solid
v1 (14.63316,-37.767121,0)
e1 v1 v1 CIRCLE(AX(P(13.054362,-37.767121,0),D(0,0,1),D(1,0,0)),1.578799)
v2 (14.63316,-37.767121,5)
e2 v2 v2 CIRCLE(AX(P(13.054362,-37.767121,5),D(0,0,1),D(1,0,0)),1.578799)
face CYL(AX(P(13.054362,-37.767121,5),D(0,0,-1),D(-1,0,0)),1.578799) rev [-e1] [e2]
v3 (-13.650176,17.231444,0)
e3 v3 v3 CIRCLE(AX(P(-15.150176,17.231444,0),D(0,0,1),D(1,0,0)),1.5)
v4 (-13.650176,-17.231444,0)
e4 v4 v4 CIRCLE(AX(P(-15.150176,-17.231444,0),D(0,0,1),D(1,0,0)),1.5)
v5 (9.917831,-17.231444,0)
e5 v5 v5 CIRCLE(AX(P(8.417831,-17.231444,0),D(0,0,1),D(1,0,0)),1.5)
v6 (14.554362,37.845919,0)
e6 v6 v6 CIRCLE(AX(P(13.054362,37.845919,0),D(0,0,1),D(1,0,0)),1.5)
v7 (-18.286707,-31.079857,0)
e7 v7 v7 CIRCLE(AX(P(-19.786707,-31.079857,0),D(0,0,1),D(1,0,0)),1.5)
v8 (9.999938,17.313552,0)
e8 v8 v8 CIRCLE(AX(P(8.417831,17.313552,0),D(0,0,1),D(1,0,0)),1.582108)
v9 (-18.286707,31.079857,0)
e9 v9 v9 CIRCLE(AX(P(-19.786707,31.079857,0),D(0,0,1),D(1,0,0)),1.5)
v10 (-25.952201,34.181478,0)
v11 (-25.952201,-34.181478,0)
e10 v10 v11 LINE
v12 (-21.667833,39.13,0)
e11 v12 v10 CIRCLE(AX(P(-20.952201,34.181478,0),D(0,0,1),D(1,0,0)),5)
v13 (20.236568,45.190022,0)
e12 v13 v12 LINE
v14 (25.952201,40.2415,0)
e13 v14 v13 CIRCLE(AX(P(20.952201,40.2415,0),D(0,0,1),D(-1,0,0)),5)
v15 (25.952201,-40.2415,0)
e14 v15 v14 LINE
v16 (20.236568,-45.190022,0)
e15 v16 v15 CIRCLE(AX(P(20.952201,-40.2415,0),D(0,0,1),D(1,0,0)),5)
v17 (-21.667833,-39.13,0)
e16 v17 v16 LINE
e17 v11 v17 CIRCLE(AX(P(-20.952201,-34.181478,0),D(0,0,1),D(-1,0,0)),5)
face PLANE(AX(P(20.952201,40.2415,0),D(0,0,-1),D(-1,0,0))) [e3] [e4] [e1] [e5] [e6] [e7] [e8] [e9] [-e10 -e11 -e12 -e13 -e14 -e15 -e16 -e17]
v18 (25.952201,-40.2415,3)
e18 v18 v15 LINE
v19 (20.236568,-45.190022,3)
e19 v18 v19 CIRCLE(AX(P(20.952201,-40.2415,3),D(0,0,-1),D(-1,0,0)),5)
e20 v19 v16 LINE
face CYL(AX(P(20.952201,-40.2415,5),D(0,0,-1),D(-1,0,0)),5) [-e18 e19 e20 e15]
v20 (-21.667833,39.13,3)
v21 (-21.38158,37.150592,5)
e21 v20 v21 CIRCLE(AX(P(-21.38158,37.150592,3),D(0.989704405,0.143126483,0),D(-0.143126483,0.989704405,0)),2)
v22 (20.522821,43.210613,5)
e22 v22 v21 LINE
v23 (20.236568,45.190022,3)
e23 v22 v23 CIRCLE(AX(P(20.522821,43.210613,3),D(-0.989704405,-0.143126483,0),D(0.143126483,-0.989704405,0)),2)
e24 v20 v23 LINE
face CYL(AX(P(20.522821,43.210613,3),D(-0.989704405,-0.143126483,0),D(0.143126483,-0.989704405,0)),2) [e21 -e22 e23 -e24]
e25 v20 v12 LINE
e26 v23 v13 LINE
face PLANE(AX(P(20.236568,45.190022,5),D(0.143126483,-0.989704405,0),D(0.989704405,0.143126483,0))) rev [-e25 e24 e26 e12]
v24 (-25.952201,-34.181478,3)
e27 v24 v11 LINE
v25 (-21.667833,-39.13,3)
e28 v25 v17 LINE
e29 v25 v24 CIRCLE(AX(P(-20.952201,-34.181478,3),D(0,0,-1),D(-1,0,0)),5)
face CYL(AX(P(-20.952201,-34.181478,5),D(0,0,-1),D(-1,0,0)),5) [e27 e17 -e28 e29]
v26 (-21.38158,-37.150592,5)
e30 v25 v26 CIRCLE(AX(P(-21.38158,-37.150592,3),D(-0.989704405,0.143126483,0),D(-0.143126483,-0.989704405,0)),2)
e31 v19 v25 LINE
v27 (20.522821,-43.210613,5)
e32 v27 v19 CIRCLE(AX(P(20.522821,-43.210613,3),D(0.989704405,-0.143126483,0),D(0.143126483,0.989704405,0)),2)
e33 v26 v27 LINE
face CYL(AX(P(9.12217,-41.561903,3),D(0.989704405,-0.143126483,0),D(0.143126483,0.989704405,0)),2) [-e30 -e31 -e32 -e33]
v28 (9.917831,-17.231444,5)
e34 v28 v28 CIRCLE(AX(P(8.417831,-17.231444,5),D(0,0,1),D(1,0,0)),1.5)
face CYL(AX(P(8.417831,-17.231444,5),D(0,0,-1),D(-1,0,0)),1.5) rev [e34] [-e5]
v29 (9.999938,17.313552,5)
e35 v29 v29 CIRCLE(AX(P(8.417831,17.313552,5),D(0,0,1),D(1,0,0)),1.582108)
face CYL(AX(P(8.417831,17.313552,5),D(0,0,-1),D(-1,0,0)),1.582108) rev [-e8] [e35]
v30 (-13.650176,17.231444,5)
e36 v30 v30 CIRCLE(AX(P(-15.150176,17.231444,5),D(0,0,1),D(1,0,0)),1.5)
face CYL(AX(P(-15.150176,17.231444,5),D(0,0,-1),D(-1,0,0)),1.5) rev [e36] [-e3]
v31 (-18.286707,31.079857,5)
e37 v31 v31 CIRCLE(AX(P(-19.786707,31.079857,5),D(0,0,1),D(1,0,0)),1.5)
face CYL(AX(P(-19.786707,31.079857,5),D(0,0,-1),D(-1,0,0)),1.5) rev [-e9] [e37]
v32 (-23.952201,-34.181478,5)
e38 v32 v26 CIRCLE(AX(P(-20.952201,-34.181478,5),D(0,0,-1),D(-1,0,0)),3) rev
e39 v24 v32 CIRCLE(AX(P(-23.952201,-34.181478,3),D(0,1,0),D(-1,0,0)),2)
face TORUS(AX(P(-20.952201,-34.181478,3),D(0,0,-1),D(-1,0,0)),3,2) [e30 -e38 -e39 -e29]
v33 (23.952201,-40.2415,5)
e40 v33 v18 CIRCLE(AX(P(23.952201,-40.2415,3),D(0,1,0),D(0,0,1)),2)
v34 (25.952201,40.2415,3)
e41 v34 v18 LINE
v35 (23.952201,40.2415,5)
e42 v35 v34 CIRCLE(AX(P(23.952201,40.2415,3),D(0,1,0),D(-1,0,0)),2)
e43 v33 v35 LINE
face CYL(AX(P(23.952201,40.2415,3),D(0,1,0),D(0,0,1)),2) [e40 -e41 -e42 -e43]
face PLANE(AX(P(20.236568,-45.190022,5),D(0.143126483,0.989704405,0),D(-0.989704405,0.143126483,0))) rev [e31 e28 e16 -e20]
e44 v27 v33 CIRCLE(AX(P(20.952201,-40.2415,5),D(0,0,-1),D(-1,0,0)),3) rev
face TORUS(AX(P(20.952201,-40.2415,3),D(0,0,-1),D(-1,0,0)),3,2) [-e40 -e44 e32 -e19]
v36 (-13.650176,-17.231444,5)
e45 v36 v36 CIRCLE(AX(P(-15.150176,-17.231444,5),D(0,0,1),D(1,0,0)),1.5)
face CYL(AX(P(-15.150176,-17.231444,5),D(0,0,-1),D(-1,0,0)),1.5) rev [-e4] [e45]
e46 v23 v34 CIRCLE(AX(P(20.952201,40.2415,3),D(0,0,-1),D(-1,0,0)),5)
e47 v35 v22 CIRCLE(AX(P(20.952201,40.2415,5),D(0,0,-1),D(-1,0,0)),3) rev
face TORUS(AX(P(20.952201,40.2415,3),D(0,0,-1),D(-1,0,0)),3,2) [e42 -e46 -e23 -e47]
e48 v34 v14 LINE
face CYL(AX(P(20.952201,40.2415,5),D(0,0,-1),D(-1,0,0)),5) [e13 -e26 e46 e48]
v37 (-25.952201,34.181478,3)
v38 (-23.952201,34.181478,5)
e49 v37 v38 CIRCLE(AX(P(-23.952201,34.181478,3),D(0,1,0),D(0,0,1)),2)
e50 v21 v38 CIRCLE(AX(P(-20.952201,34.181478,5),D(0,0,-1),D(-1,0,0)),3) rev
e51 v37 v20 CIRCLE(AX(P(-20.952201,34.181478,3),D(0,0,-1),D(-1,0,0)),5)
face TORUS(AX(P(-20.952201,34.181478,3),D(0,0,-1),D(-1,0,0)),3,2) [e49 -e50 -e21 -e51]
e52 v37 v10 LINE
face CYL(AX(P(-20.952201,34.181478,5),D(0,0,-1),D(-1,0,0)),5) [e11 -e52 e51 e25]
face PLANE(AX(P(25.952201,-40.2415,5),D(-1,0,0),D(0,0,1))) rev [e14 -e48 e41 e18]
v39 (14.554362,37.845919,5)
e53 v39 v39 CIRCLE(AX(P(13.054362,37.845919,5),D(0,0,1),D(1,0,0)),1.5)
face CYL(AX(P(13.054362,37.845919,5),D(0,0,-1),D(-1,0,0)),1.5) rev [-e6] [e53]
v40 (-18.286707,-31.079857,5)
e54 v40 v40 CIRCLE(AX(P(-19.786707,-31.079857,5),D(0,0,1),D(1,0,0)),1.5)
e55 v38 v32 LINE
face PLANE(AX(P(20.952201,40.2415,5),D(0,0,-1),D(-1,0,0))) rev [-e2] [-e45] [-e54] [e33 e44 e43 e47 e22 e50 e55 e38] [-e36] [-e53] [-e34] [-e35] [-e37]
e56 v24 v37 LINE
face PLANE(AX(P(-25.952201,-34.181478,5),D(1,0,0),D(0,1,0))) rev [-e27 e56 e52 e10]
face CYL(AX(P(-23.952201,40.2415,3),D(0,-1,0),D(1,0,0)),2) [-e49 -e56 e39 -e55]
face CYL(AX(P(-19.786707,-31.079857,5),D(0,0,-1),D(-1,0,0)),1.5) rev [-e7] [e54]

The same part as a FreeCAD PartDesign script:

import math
import FreeCAD as App
import Part
import Sketcher
from FreeCAD import Vector
Q = App.Units.Quantity


def edges_at(feature, points):
    """Names of the edges that pass closest to the given points."""
    edges = feature.Shape.Edges
    near = lambda p: min(range(len(edges)), key=lambda i: edges[i].distToShape(Part.Vertex(*p))[0])
    return sorted({f"Edge{near(p) + 1}" for p in points})

doc = App.newDocument("Part")
params = doc.addObject("Spreadsheet::Sheet", "Params")
for row, (alias, value) in enumerate([
    ("sketch1_diameter", "3 mm"),
    ("sketch1_radius", "5 mm"),
    ("pad1_length", "5 mm"),
    ("fillet_radius", "2 mm"),
], start=1):
    params.set(f"A{row}", alias)
    params.set(f"B{row}", "=" + value)
    params.setAlias(f"B{row}", alias)

body = doc.addObject("PartDesign::Body", "Body")

# Sketch on XY plane
sketch1 = doc.addObject("Sketcher::SketchObject", "Sketch")
body.addObject(sketch1)
sketch1.AttachmentSupport = (doc.XY_Plane, [""])
sketch1.MapMode = "FlatFace"
sketch1.addGeometry([
    Part.LineSegment(Vector(-21.7, -39.1, 0), Vector(20.2, -45.2, 0)),  # 0
    Part.ArcOfCircle(Part.Circle(Vector(21, -40.2, 0), Vector(0, 0, 1), 5), math.radians(-98), math.radians(0)),  # 1
    Part.LineSegment(Vector(26, -40.2, 0), Vector(26, 40.2, 0)),  # 2
    Part.ArcOfCircle(Part.Circle(Vector(21, 40.2, 0), Vector(0, 0, 1), 5), math.radians(0), math.radians(98)),  # 3
    Part.LineSegment(Vector(20.2, 45.2, 0), Vector(-21.7, 39.1, 0)),  # 4
    Part.ArcOfCircle(Part.Circle(Vector(-21, 34.2, 0), Vector(0, 0, 1), 5), math.radians(98), math.radians(180)),  # 5
    Part.LineSegment(Vector(-26, 34.2, 0), Vector(-26, -34.2, 0)),  # 6
    Part.ArcOfCircle(Part.Circle(Vector(-21, -34.2, 0), Vector(0, 0, 1), 5), math.radians(-180), math.radians(-98)),  # 7
    Part.Circle(Vector(13.1, -37.8, 0), Vector(0, 0, 1), 1.6),  # 8
    Part.Circle(Vector(8.4, -17.2, 0), Vector(0, 0, 1), 1.5),  # 9
    Part.Circle(Vector(-19.8, -31.1, 0), Vector(0, 0, 1), 1.5),  # 10
    Part.Circle(Vector(-15.2, -17.2, 0), Vector(0, 0, 1), 1.5),  # 11
    Part.Circle(Vector(8.4, 17.3, 0), Vector(0, 0, 1), 1.6),  # 12
    Part.Circle(Vector(13.1, 37.8, 0), Vector(0, 0, 1), 1.5),  # 13
    Part.Circle(Vector(-15.2, 17.2, 0), Vector(0, 0, 1), 1.5),  # 14
    Part.Circle(Vector(-19.8, 31.1, 0), Vector(0, 0, 1), 1.5),  # 15
], False)
sketch1.addConstraint([
    Sketcher.Constraint("Tangent", 0, 2, 1, 1),
    Sketcher.Constraint("Tangent", 1, 2, 2, 1),
    Sketcher.Constraint("Tangent", 2, 2, 3, 1),
    Sketcher.Constraint("Tangent", 3, 2, 4, 1),
    Sketcher.Constraint("Tangent", 4, 2, 5, 1),
    Sketcher.Constraint("Tangent", 5, 2, 6, 1),
    Sketcher.Constraint("Tangent", 6, 2, 7, 1),
    Sketcher.Constraint("Tangent", 7, 2, 0, 1),
    Sketcher.Constraint("Vertical", 2),
    Sketcher.Constraint("Vertical", 6),
    Sketcher.Constraint("Equal", 1, 3),
    Sketcher.Constraint("Equal", 3, 5),
    Sketcher.Constraint("Equal", 5, 7),
    Sketcher.Constraint("Equal", 9, 10),
    Sketcher.Constraint("Equal", 10, 11),
    Sketcher.Constraint("Equal", 11, 13),
    Sketcher.Constraint("Equal", 13, 14),
    Sketcher.Constraint("Equal", 14, 15),
    Sketcher.Constraint("Symmetric", 11, 3, 14, 3, -1),
    Sketcher.Constraint("Symmetric", 10, 3, 15, 3, -1),
    Sketcher.Constraint("Symmetric", 0, 2, 3, 2, -1),
    Sketcher.Constraint("Horizontal", 9, 3, 11, 3),
    Sketcher.Constraint("Vertical", 9, 3, 12, 3),
    Sketcher.Constraint("Vertical", 8, 3, 13, 3),
    Sketcher.Constraint("Diameter", 9, Q("3 mm")),
    Sketcher.Constraint("Radius", 1, Q("5 mm")),
    Sketcher.Constraint("DistanceY", 2, 1, 2, 2, Q("80.482999 mm")),
    Sketcher.Constraint("DistanceY", -1, 1, 4, 2, Q("39.13 mm")),
    Sketcher.Constraint("Diameter", 8, Q("3.157597 mm")),
    Sketcher.Constraint("Diameter", 12, Q("3.164215 mm")),
    Sketcher.Constraint("DistanceX", -1, 1, 1, 3, Q("20.952201 mm")),
    Sketcher.Constraint("DistanceX", 5, 3, -1, 1, Q("20.952201 mm")),
    Sketcher.Constraint("DistanceY", 8, 3, 5, 3, Q("71.948599 mm")),
    Sketcher.Constraint("DistanceX", -1, 1, 8, 3, Q("13.054362 mm")),
    Sketcher.Constraint("DistanceX", -1, 1, 9, 3, Q("8.417831 mm")),
    Sketcher.Constraint("DistanceY", -1, 1, 12, 3, Q("17.313552 mm")),
    Sketcher.Constraint("DistanceY", -1, 1, 13, 3, Q("37.845919 mm")),
    Sketcher.Constraint("DistanceY", 7, 3, 10, 3, Q("3.101622 mm")),
    Sketcher.Constraint("DistanceX", 10, 3, 9, 3, Q("28.204538 mm")),
    Sketcher.Constraint("DistanceX", 10, 3, 11, 3, Q("4.636531 mm")),
    Sketcher.Constraint("DistanceY", 9, 3, -1, 1, Q("17.231444 mm")),
])
sketch1.setExpression("Constraints[24]", "Params.sketch1_diameter")
sketch1.setExpression("Constraints[25]", "Params.sketch1_radius")
pad1 = doc.addObject("PartDesign::Pad", "Pad")
body.addObject(pad1)
pad1.Profile = sketch1
pad1.setExpression("Length", "Params.pad1_length")
doc.recompute()

fillet = doc.addObject("PartDesign::Fillet", "Fillet")
body.addObject(fillet)
fillet.Base = (pad1, edges_at(pad1, [
    (-24.732, 37.454, 5),
    (-25.952, 0, 5),
    (-24.732, -37.454, 5),
    (-0.716, -42.16, 5),
    (24.225, -44.022, 5),
    (25.952, 0, 5),
    (24.225, 44.022, 5),
    (-0.716, 42.16, 5),
]))
fillet.setExpression("Radius", "Params.fillet_radius")

doc.recompute()
